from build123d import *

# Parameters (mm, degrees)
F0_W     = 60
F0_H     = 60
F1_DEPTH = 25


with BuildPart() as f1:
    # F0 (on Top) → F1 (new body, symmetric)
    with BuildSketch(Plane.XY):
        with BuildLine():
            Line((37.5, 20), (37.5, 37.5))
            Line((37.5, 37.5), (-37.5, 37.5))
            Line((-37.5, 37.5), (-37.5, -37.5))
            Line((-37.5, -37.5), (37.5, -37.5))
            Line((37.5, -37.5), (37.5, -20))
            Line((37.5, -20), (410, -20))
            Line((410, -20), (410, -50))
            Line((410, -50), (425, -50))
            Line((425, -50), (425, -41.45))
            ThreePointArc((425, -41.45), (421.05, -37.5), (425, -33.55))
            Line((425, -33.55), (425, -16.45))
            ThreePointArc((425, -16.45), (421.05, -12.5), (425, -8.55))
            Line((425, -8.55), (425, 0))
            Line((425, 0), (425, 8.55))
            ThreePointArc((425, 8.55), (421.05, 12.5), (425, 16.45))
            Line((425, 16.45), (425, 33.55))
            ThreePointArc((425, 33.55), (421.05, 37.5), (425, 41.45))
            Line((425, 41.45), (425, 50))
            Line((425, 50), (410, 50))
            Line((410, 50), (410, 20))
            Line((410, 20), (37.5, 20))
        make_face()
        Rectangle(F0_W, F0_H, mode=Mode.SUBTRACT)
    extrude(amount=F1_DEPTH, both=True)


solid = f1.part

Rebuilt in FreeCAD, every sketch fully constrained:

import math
import FreeCAD as App
import Part
import Sketcher
Q = App.Units.Quantity

doc = App.newDocument("Part")
body = doc.addObject("PartDesign::Body", "Body")

# Sketch on XY plane
sketch1 = body.newObject("Sketcher::SketchObject", "Sketch")
sketch1.AttachmentSupport = (doc.getObject("XY_Plane"), [""])
sketch1.MapMode = "FlatFace"
sketch1.addGeometry(Part.LineSegment(App.Vector(37.5, 20, 0), App.Vector(37.5, 37.5, 0)), False)
sketch1.addGeometry(Part.LineSegment(App.Vector(37.5, 37.5, 0), App.Vector(-37.5, 37.5, 0)), False)
sketch1.addGeometry(Part.LineSegment(App.Vector(-37.5, 37.5, 0), App.Vector(-37.5, -37.5, 0)), False)
sketch1.addGeometry(Part.LineSegment(App.Vector(-37.5, -37.5, 0), App.Vector(37.5, -37.5, 0)), False)
sketch1.addGeometry(Part.LineSegment(App.Vector(37.5, -37.5, 0), App.Vector(37.5, -20, 0)), False)
sketch1.addGeometry(Part.LineSegment(App.Vector(37.5, -20, 0), App.Vector(410, -20, 0)), False)
sketch1.addGeometry(Part.LineSegment(App.Vector(410, -20, 0), App.Vector(410, -50, 0)), False)
sketch1.addGeometry(Part.LineSegment(App.Vector(410, -50, 0), App.Vector(425, -50, 0)), False)
sketch1.addGeometry(Part.LineSegment(App.Vector(425, -50, 0), App.Vector(425, -41.5, 0)), False)
sketch1.addGeometry(Part.ArcOfCircle(Part.Circle(App.Vector(425, -37.5, 0), App.Vector(0, 0, 1), 4), math.radians(90), math.radians(270)), False)
sketch1.addGeometry(Part.LineSegment(App.Vector(425, -33.5, 0), App.Vector(425, -16.4, 0)), False)
sketch1.addGeometry(Part.ArcOfCircle(Part.Circle(App.Vector(425, -12.5, 0), App.Vector(0, 0, 1), 4), math.radians(90), math.radians(270)), False)
sketch1.addGeometry(Part.LineSegment(App.Vector(425, -8.6, 0), App.Vector(425, 8.6, 0)), False)
sketch1.addGeometry(Part.ArcOfCircle(Part.Circle(App.Vector(425, 12.5, 0), App.Vector(0, 0, 1), 4), math.radians(90), math.radians(270)), False)
sketch1.addGeometry(Part.LineSegment(App.Vector(425, 16.4, 0), App.Vector(425, 33.5, 0)), False)
sketch1.addGeometry(Part.ArcOfCircle(Part.Circle(App.Vector(425, 37.5, 0), App.Vector(0, 0, 1), 4), math.radians(90), math.radians(270)), False)
sketch1.addGeometry(Part.LineSegment(App.Vector(425, 41.5, 0), App.Vector(425, 50, 0)), False)
sketch1.addGeometry(Part.LineSegment(App.Vector(425, 50, 0), App.Vector(410, 50, 0)), False)
sketch1.addGeometry(Part.LineSegment(App.Vector(410, 50, 0), App.Vector(410, 20, 0)), False)
sketch1.addGeometry(Part.LineSegment(App.Vector(410, 20, 0), App.Vector(37.5, 20, 0)), False)
sketch1.addGeometry(Part.LineSegment(App.Vector(30, -30, 0), App.Vector(-30, -30, 0)), False)
sketch1.addGeometry(Part.LineSegment(App.Vector(-30, -30, 0), App.Vector(-30, 30, 0)), False)
sketch1.addGeometry(Part.LineSegment(App.Vector(-30, 30, 0), App.Vector(30, 30, 0)), False)
sketch1.addGeometry(Part.LineSegment(App.Vector(30, 30, 0), App.Vector(30, -30, 0)), False)
sketch1.addConstraint(Sketcher.Constraint("Coincident", 0, 2, 1, 1))
sketch1.addConstraint(Sketcher.Constraint("Coincident", 1, 2, 2, 1))
sketch1.addConstraint(Sketcher.Constraint("Coincident", 2, 2, 3, 1))
sketch1.addConstraint(Sketcher.Constraint("Coincident", 3, 2, 4, 1))
sketch1.addConstraint(Sketcher.Constraint("Coincident", 4, 2, 5, 1))
sketch1.addConstraint(Sketcher.Constraint("Coincident", 5, 2, 6, 1))
sketch1.addConstraint(Sketcher.Constraint("Coincident", 6, 2, 7, 1))
sketch1.addConstraint(Sketcher.Constraint("Coincident", 7, 2, 8, 1))
sketch1.addConstraint(Sketcher.Constraint("Coincident", 8, 2, 9, 2))
sketch1.addConstraint(Sketcher.Constraint("Coincident", 9, 1, 10, 1))
sketch1.addConstraint(Sketcher.Constraint("Coincident", 10, 2, 11, 2))
sketch1.addConstraint(Sketcher.Constraint("Coincident", 11, 1, 12, 1))
sketch1.addConstraint(Sketcher.Constraint("Coincident", 12, 2, 13, 2))
sketch1.addConstraint(Sketcher.Constraint("Coincident", 13, 1, 14, 1))
sketch1.addConstraint(Sketcher.Constraint("Coincident", 14, 2, 15, 2))
sketch1.addConstraint(Sketcher.Constraint("Coincident", 15, 1, 16, 1))
sketch1.addConstraint(Sketcher.Constraint("Coincident", 16, 2, 17, 1))
sketch1.addConstraint(Sketcher.Constraint("Coincident", 17, 2, 18, 1))
sketch1.addConstraint(Sketcher.Constraint("Coincident", 18, 2, 19, 1))
sketch1.addConstraint(Sketcher.Constraint("Coincident", 19, 2, 0, 1))
sketch1.addConstraint(Sketcher.Constraint("Coincident", 20, 2, 21, 1))
sketch1.addConstraint(Sketcher.Constraint("Coincident", 21, 2, 22, 1))
sketch1.addConstraint(Sketcher.Constraint("Coincident", 22, 2, 23, 1))
sketch1.addConstraint(Sketcher.Constraint("Coincident", 23, 2, 20, 1))
sketch1.addConstraint(Sketcher.Constraint("Vertical", 0))
sketch1.addConstraint(Sketcher.Constraint("Horizontal", 1))
sketch1.addConstraint(Sketcher.Constraint("Vertical", 2))
sketch1.addConstraint(Sketcher.Constraint("Horizontal", 3))
sketch1.addConstraint(Sketcher.Constraint("Vertical", 4))
sketch1.addConstraint(Sketcher.Constraint("Horizontal", 5))
sketch1.addConstraint(Sketcher.Constraint("Vertical", 6))
sketch1.addConstraint(Sketcher.Constraint("Horizontal", 7))
sketch1.addConstraint(Sketcher.Constraint("Vertical", 8))
sketch1.addConstraint(Sketcher.Constraint("Vertical", 10))
sketch1.addConstraint(Sketcher.Constraint("Vertical", 12))
sketch1.addConstraint(Sketcher.Constraint("Vertical", 14))
sketch1.addConstraint(Sketcher.Constraint("Vertical", 16))
sketch1.addConstraint(Sketcher.Constraint("Horizontal", 17))
sketch1.addConstraint(Sketcher.Constraint("Vertical", 18))
sketch1.addConstraint(Sketcher.Constraint("Horizontal", 19))
sketch1.addConstraint(Sketcher.Constraint("Horizontal", 20))
sketch1.addConstraint(Sketcher.Constraint("Vertical", 21))
sketch1.addConstraint(Sketcher.Constraint("Horizontal", 22))
sketch1.addConstraint(Sketcher.Constraint("Vertical", 23))
sketch1.addConstraint(Sketcher.Constraint("Equal", 9, 11))
sketch1.addConstraint(Sketcher.Constraint("Equal", 11, 13))
sketch1.addConstraint(Sketcher.Constraint("Equal", 13, 15))
sketch1.addConstraint(Sketcher.Constraint("Symmetric", 0, 2, 2, 2, -1, 1))
sketch1.addConstraint(Sketcher.Constraint("Symmetric", 20, 2, 22, 2, -1, 1))
sketch1.addConstraint(Sketcher.Constraint("Symmetric", 11, 3, 13, 3, -1))
sketch1.addConstraint(Sketcher.Constraint("Symmetric", 9, 3, 15, 3, -1))
sketch1.addConstraint(Sketcher.Constraint("Symmetric", 7, 2, 16, 2, -1))
sketch1.addConstraint(Sketcher.Constraint("Symmetric", 5, 2, 18, 2, -1))
sketch1.addConstraint(Sketcher.Constraint("Horizontal", 15, 3, 0, 2))
sketch1.addConstraint(Sketcher.Constraint("Vertical", 9, 3, 11, 3))
sketch1.addConstraint(Sketcher.Constraint("Vertical", 0, 2, 3, 2))
sketch1.addConstraint(Sketcher.Constraint("Vertical", 15, 3, 7, 2))
sketch1.addConstraint(Sketcher.Constraint("Vertical", 8, 2, 9, 1))
sketch1.addConstraint(Sketcher.Constraint("Vertical", 10, 2, 11, 1))
sketch1.addConstraint(Sketcher.Constraint("Vertical", 12, 2, 13, 1))
sketch1.addConstraint(Sketcher.Constraint("Equal", 3, 2))
sketch1.addConstraint(Sketcher.Constraint("Equal", 10, 12))
sketch1.addConstraint(Sketcher.Constraint("Equal", 22, 21))
sketch1.addConstraint(Sketcher.Constraint("DistanceX", 1, 2, 1, 1, Q("75 mm")))
sketch1.addConstraint(Sketcher.Constraint("DistanceX", 7, 1, 7, 2, Q("15 mm")))
sketch1.addConstraint(Sketcher.Constraint("DistanceX", 20, 2, 20, 1, Q("60 mm")))
sketch1.addConstraint(Sketcher.Constraint("DistanceY", 6, 2, 6, 1, Q("30 mm")))
sketch1.addConstraint(Sketcher.Constraint("Radius", 9, Q("3.95 mm")))
sketch1.addConstraint(Sketcher.Constraint("DistanceX", 5, 1, 5, 2, Q("372.5 mm")))
sketch1.addConstraint(Sketcher.Constraint("DistanceY", 0, 1, 0, 2, Q("17.5 mm")))
pad1 = body.newObject("PartDesign::Pad", "Pad")
pad1.Profile = sketch1
pad1.Length = 50
pad1.Midplane = True

doc.recompute()
